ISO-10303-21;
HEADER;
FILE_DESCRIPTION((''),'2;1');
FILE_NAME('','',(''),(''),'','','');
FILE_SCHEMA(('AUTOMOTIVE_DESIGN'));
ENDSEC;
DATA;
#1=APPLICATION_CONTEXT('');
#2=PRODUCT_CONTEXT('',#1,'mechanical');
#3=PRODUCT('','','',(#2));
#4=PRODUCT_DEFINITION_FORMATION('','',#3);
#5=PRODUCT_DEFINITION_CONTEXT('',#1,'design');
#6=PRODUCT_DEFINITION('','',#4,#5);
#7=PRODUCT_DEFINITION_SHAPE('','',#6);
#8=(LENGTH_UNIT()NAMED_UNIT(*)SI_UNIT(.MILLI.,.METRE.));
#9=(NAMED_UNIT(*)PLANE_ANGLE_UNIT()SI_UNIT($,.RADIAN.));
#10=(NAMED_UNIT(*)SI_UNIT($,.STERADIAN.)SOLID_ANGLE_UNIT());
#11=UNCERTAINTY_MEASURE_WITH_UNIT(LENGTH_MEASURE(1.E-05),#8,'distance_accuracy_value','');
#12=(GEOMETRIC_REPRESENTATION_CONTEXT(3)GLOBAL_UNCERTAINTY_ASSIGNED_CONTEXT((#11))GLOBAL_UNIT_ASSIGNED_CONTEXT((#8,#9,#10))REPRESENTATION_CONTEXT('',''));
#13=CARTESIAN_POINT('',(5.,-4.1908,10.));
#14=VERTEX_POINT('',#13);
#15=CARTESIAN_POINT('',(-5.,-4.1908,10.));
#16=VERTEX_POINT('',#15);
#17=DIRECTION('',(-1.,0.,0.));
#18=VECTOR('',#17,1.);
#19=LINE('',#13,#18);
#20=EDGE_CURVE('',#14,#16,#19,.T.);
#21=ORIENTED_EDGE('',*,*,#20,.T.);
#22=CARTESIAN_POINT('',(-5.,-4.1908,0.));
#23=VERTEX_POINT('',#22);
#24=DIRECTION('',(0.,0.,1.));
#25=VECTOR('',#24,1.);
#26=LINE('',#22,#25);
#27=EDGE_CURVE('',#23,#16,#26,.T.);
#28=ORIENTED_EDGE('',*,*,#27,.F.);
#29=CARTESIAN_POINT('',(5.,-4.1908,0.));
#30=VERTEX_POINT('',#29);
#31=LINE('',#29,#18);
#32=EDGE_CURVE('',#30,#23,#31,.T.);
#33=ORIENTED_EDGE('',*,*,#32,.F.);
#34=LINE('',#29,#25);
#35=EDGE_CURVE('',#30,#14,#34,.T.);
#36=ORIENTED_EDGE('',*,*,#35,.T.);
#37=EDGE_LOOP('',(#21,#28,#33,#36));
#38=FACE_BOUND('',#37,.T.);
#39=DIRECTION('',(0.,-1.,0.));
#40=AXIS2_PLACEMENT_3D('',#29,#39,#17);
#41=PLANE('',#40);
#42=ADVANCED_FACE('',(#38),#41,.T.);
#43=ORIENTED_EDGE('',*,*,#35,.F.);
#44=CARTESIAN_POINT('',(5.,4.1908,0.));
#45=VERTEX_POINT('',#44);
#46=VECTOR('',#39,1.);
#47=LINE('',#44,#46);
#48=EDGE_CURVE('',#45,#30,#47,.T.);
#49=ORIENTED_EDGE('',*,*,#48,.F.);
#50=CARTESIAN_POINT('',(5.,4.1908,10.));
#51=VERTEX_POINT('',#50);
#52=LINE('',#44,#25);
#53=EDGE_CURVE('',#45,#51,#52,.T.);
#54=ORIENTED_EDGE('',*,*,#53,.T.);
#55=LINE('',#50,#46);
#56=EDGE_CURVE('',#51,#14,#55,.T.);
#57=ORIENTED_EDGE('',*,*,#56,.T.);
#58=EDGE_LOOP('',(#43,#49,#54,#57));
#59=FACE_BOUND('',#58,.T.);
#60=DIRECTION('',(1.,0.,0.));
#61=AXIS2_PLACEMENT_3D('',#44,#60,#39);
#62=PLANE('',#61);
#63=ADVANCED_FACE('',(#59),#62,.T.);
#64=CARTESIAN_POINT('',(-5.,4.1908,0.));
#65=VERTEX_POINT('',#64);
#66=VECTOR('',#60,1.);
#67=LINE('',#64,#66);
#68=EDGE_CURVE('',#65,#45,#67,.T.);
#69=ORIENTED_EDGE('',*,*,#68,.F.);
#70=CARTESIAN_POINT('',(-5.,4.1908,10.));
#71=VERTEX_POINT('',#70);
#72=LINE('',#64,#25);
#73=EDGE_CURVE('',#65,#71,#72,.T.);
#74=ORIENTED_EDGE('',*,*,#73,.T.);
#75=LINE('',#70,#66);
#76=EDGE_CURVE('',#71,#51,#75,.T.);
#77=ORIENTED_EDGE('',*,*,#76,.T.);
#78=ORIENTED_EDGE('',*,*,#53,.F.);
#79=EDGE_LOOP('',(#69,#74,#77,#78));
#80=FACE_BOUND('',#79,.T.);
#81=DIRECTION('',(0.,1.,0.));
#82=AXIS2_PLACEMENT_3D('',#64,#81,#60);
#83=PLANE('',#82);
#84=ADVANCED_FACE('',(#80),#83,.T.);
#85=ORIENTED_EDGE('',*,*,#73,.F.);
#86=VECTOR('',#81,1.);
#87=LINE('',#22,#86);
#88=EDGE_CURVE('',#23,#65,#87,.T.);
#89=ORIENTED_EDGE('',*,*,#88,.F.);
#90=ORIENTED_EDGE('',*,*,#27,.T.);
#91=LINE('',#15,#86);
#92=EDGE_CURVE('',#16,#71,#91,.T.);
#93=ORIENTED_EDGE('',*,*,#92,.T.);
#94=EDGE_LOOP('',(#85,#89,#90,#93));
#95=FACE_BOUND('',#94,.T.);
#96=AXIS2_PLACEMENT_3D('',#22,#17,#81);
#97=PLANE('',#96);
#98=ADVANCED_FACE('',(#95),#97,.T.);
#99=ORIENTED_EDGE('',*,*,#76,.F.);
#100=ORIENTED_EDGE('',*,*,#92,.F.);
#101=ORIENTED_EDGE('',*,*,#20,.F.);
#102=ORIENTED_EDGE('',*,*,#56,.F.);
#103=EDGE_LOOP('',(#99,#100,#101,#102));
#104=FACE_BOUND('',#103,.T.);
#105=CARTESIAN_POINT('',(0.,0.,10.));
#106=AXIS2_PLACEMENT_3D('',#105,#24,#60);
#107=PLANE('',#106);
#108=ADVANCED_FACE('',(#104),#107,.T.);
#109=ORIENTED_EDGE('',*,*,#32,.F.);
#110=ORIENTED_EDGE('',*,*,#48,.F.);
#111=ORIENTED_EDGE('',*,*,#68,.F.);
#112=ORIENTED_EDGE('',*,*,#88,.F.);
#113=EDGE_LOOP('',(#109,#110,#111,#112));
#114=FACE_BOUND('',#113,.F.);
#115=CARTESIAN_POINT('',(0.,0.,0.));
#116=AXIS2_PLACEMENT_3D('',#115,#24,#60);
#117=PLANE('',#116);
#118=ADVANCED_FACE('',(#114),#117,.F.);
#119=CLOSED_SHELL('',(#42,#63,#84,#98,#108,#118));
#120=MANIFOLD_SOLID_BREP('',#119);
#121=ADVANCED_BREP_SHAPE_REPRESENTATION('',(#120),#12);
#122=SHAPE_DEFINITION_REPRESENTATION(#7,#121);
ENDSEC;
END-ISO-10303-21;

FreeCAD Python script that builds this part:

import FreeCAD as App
import Part
import Sketcher

doc = App.newDocument("Part")
body = doc.addObject("PartDesign::Body", "Body")

# Sketch on XY plane
sketch1 = body.newObject("Sketcher::SketchObject", "Sketch")
sketch1.AttachmentSupport = (doc.getObject("XY_Plane"), [""])
sketch1.MapMode = "FlatFace"
sketch1.addGeometry([
    Part.LineSegment(App.Vector(-5, -4, 0), App.Vector(5, -4, 0)),
    Part.LineSegment(App.Vector(5, -4, 0), App.Vector(5, 4, 0)),
    Part.LineSegment(App.Vector(5, 4, 0), App.Vector(-5, 4, 0)),
    Part.LineSegment(App.Vector(-5, 4, 0), App.Vector(-5, -4, 0)),
], False)
sketch1.addConstraint([
    Sketcher.Constraint("Coincident", 0, 2, 1, 1),
    Sketcher.Constraint("Coincident", 1, 2, 2, 1),
    Sketcher.Constraint("Coincident", 2, 2, 3, 1),
    Sketcher.Constraint("Coincident", 3, 2, 0, 1),
    Sketcher.Constraint("Horizontal", 0),
    Sketcher.Constraint("Vertical", 1),
    Sketcher.Constraint("Horizontal", 2),
    Sketcher.Constraint("Vertical", 3),
    Sketcher.Constraint("Symmetric", 0, 2, 2, 2, -1, 1),
    Sketcher.Constraint("DistanceX", 0, 1, 0, 2, 10.0),
    Sketcher.Constraint("DistanceY", 1, 1, 1, 2, 8.3816),
])
pad1 = body.newObject("PartDesign::Pad", "Pad")
pad1.Profile = sketch1
pad1.Length = 10

doc.recompute()
